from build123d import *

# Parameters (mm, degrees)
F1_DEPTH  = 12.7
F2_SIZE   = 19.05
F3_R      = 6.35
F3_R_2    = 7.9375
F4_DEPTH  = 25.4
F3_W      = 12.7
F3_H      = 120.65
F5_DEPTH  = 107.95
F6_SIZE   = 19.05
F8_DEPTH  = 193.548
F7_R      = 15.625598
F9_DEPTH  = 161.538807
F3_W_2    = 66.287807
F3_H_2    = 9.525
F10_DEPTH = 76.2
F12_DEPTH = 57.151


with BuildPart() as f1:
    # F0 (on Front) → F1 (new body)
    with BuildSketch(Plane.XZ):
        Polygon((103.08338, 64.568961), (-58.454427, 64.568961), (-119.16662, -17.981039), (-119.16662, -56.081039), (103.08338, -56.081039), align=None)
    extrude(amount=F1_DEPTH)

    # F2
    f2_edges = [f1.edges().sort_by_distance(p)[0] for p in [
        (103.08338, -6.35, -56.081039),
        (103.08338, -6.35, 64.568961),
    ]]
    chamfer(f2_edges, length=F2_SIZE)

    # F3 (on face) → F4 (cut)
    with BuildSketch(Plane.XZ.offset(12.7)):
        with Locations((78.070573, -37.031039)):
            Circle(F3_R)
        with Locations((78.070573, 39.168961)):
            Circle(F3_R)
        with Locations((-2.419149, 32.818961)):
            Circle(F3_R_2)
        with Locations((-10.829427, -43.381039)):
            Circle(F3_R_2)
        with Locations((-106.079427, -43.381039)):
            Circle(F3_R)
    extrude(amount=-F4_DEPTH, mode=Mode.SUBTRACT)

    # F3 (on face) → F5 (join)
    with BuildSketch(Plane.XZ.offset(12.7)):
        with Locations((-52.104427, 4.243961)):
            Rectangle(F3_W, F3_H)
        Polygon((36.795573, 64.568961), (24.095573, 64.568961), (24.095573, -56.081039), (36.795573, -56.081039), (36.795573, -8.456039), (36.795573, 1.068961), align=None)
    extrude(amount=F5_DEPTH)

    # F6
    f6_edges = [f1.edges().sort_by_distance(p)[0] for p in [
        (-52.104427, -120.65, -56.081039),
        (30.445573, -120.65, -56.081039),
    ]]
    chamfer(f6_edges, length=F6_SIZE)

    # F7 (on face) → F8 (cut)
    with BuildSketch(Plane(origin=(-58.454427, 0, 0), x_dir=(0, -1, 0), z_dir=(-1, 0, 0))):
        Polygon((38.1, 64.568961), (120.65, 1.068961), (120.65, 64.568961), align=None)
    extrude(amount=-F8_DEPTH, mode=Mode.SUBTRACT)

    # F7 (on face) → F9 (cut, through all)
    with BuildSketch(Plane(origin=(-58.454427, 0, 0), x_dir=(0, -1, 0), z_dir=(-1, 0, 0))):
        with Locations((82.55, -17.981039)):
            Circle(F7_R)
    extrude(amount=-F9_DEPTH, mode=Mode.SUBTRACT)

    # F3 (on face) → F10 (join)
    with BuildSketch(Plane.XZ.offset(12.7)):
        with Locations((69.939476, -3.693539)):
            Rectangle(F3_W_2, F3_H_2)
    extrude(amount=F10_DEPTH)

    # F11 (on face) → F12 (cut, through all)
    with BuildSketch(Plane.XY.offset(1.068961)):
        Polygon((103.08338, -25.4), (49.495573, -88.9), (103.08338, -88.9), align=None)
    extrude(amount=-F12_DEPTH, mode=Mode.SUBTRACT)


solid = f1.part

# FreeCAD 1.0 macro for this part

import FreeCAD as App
import Part
import Sketcher
from FreeCAD import Vector
Q = App.Units.Quantity


def edges_at(feature, points):
    """Names of the edges that pass closest to the given points."""
    edges = feature.Shape.Edges
    near = lambda p: min(range(len(edges)), key=lambda i: edges[i].distToShape(Part.Vertex(*p))[0])
    return sorted({f"Edge{near(p) + 1}" for p in points})

doc = App.newDocument("Part")
body = doc.addObject("PartDesign::Body", "Body")

# Sketch on XZ plane
sketch1 = body.newObject("Sketcher::SketchObject", "Sketch")
sketch1.AttachmentSupport = (doc.getObject("XZ_Plane"), [""])
sketch1.MapMode = "FlatFace"
sketch1.addGeometry([
    Part.LineSegment(Vector(103, 65, 0), Vector(-58, 65, 0)),  # 0
    Part.LineSegment(Vector(-58, 65, 0), Vector(-119, -18, 0)),  # 1
    Part.LineSegment(Vector(-119, -18, 0), Vector(-119, -56, 0)),  # 2
    Part.LineSegment(Vector(-119, -56, 0), Vector(103, -56, 0)),  # 3
    Part.LineSegment(Vector(103, -56, 0), Vector(103, 65, 0)),  # 4
], False)
sketch1.addConstraint([
    Sketcher.Constraint("Coincident", 0, 2, 1, 1),
    Sketcher.Constraint("Coincident", 1, 2, 2, 1),
    Sketcher.Constraint("Coincident", 2, 2, 3, 1),
    Sketcher.Constraint("Coincident", 3, 2, 4, 1),
    Sketcher.Constraint("Coincident", 4, 2, 0, 1),
    Sketcher.Constraint("Horizontal", 0),
    Sketcher.Constraint("Vertical", 2),
    Sketcher.Constraint("Horizontal", 3),
    Sketcher.Constraint("Vertical", 4),
    Sketcher.Constraint("DistanceY", 2, 2, 2, 1, Q("1.5 in")),
    Sketcher.Constraint("DistanceX", 3, 1, 3, 2, Q("8.75 in")),
    Sketcher.Constraint("DistanceY", 4, 1, 4, 2, Q("4.75 in")),
    Sketcher.Constraint("DistanceX", 0, 2, 0, 1, Q("161.537807 mm")),
    Sketcher.Constraint("DistanceY", -1, 1, 0, 2, Q("64.568961 mm")),
    Sketcher.Constraint("DistanceX", 1, 2, -1, 1, Q("119.16662 mm")),
])
pad1 = body.newObject("PartDesign::Pad", "Pad")
pad1.Profile = sketch1
pad1.Length = Q("0.5 in")
doc.recompute()

chamfer = body.newObject("PartDesign::Chamfer", "Chamfer")
chamfer.Base = (pad1, edges_at(pad1, [(103.083, -6.35, -56.081), (103.083, -6.35, 64.569)]))
chamfer.Size = Q("0.75 in")

# Sketch on XZ plane
sketch2 = body.newObject("Sketcher::SketchObject", "Sketch001")
sketch2.AttachmentSupport = (doc.getObject("XZ_Plane"), [""])
sketch2.MapMode = "FlatFace"
sketch2.AttachmentOffset = App.Placement(Vector(0, 0, 0.5 * 25.4), App.Rotation())
sketch2.addGeometry([
    Part.Circle(Vector(78, -37, 0), Vector(0, 0, 1), 6),  # 0
    Part.Circle(Vector(78, 39, 0), Vector(0, 0, 1), 6),  # 1
    Part.Circle(Vector(-2, 33, 0), Vector(0, 0, 1), 8),  # 2
    Part.Circle(Vector(-11, -43, 0), Vector(0, 0, 1), 8),  # 3
    Part.Circle(Vector(-106, -43, 0), Vector(0, 0, 1), 6),  # 4
], False)
sketch2.addConstraint([
    Sketcher.Constraint("Equal", 0, 1),
    Sketcher.Constraint("Equal", 2, 3),
    Sketcher.Constraint("Equal", 1, 4),
    Sketcher.Constraint("Horizontal", 3, 3, 4, 3),
    Sketcher.Constraint("Vertical", 0, 3, 1, 3),
    Sketcher.Constraint("Diameter", 0, Q("0.5 in")),
    Sketcher.Constraint("Diameter", 2, Q("0.625 in")),
    Sketcher.Constraint("DistanceY", 0, 3, 1, 3, Q("3 in")),
    Sketcher.Constraint("DistanceY", 3, 3, 2, 3, Q("3 in")),
    Sketcher.Constraint("DistanceX", 3, 3, 0, 3, Q("3.5 in")),
    Sketcher.Constraint("DistanceY", 2, 3, 1, 3, Q("0.25 in")),
    Sketcher.Constraint("DistanceX", 4, 3, 3, 3, Q("3.75 in")),
    Sketcher.Constraint("DistanceY", 0, 3, -1, 1, Q("37.031039 mm")),
    Sketcher.Constraint("DistanceX", 2, 3, -1, 1, Q("2.419149 mm")),
    Sketcher.Constraint("DistanceX", 2, 3, 1, 3, Q("80.489722 mm")),
])
pocket1 = body.newObject("PartDesign::Pocket", "Pocket")
pocket1.Profile = sketch2
pocket1.Length = Q("1 in")

# Sketch on XZ plane
sketch3 = body.newObject("Sketcher::SketchObject", "Sketch002")
sketch3.AttachmentSupport = (doc.getObject("XZ_Plane"), [""])
sketch3.MapMode = "FlatFace"
sketch3.AttachmentOffset = App.Placement(Vector(0, 0, 0.5 * 25.4), App.Rotation())
sketch3.addGeometry([
    Part.LineSegment(Vector(-58, 65, 0), Vector(-58, -56, 0)),  # 0
    Part.LineSegment(Vector(-58, -56, 0), Vector(-46, -56, 0)),  # 1
    Part.LineSegment(Vector(-46, -56, 0), Vector(-46, 65, 0)),  # 2
    Part.LineSegment(Vector(-46, 65, 0), Vector(-58, 65, 0)),  # 3
    Part.LineSegment(Vector(37, 65, 0), Vector(24, 65, 0)),  # 4
    Part.LineSegment(Vector(24, 65, 0), Vector(24, -56, 0)),  # 5
    Part.LineSegment(Vector(24, -56, 0), Vector(37, -56, 0)),  # 6
    Part.LineSegment(Vector(37, -56, 0), Vector(37, 65, 0)),  # 7
], False)
sketch3.addConstraint([
    Sketcher.Constraint("Coincident", 0, 2, 1, 1),
    Sketcher.Constraint("Coincident", 1, 2, 2, 1),
    Sketcher.Constraint("Coincident", 2, 2, 3, 1),
    Sketcher.Constraint("Coincident", 3, 2, 0, 1),
    Sketcher.Constraint("Coincident", 4, 2, 5, 1),
    Sketcher.Constraint("Coincident", 5, 2, 6, 1),
    Sketcher.Constraint("Coincident", 6, 2, 7, 1),
    Sketcher.Constraint("Coincident", 7, 2, 4, 1),
    Sketcher.Constraint("Vertical", 0),
    Sketcher.Constraint("Horizontal", 1),
    Sketcher.Constraint("Vertical", 2),
    Sketcher.Constraint("Horizontal", 3),
    Sketcher.Constraint("Horizontal", 4),
    Sketcher.Constraint("Vertical", 5),
    Sketcher.Constraint("Horizontal", 6),
    Sketcher.Constraint("Vertical", 7),
    Sketcher.Constraint("Horizontal", 3, 2, 4, 2),
    Sketcher.Constraint("Horizontal", 1, 2, 5, 2),
    Sketcher.Constraint("Equal", 3, 4),
    Sketcher.Constraint("DistanceX", 1, 1, 1, 2, Q("0.5 in")),
    Sketcher.Constraint("DistanceY", 0, 2, 0, 1, Q("4.75 in")),
    Sketcher.Constraint("DistanceX", 2, 2, 4, 2, Q("2.75 in")),
    Sketcher.Constraint("DistanceY", 0, 2, -1, 1, Q("56.081039 mm")),
    Sketcher.Constraint("DistanceX", 0, 2, -1, 1, Q("58.454427 mm")),
])
pad2 = body.newObject("PartDesign::Pad", "Pad001")
pad2.Profile = sketch3
pad2.Length = Q("4.25 in")
doc.recompute()

chamfer2 = body.newObject("PartDesign::Chamfer", "Chamfer001")
chamfer2.Base = (pad2, edges_at(pad2, [(-52.104, -120.65, -56.081), (30.446, -120.65, -56.081)]))
chamfer2.Size = Q("0.75 in")

# Sketch on YZ plane
sketch4 = body.newObject("Sketcher::SketchObject", "Sketch003")
sketch4.AttachmentSupport = (doc.getObject("YZ_Plane"), [""])
sketch4.MapMode = "FlatFace"
sketch4.AttachmentOffset = App.Placement(Vector(0, 0, -58.454427), App.Rotation())
sketch4.addGeometry([
    Part.LineSegment(Vector(-38, 65, 0), Vector(-121, 1, 0)),
    Part.LineSegment(Vector(-121, 1, 0), Vector(-121, 65, 0)),
    Part.LineSegment(Vector(-121, 65, 0), Vector(-38, 65, 0)),
], False)
sketch4.addConstraint([
    Sketcher.Constraint("Coincident", 0, 2, 1, 1),
    Sketcher.Constraint("Coincident", 1, 2, 2, 1),
    Sketcher.Constraint("Coincident", 2, 2, 0, 1),
    Sketcher.Constraint("Vertical", 1),
    Sketcher.Constraint("Horizontal", 2),
    Sketcher.Constraint("DistanceY", 1, 1, 1, 2, Q("2.5 in")),
    Sketcher.Constraint("DistanceX", 2, 1, 2, 2, Q("3.25 in")),
    Sketcher.Constraint("DistanceX", 2, 2, -1, 1, Q("1.5 in")),
    Sketcher.Constraint("DistanceY", -1, 1, 0, 2, Q("1.068961 mm")),
])
pocket2 = body.newObject("PartDesign::Pocket", "Pocket001")
pocket2.Profile = sketch4
pocket2.Length = Q("7.62 in")
pocket2.Reversed = True

# Sketch on YZ plane
sketch5 = body.newObject("Sketcher::SketchObject", "Sketch004")
sketch5.AttachmentSupport = (doc.getObject("YZ_Plane"), [""])
sketch5.MapMode = "FlatFace"
sketch5.AttachmentOffset = App.Placement(Vector(0, 0, -58.454427), App.Rotation())
sketch5.addGeometry(Part.Circle(Vector(-83, -18, 0), Vector(0, 0, 1), 16), False)
sketch5.addConstraint([
    Sketcher.Constraint("DistanceX", 0, 3, -1, 1, Q("3.25 in")),
    Sketcher.Constraint("Diameter", 0, Q("31.251196 mm")),
    Sketcher.Constraint("DistanceY", 0, 3, -1, 1, Q("17.981039 mm")),
])
pocket3 = body.newObject("PartDesign::Pocket", "Pocket002")
pocket3.Profile = sketch5
pocket3.Type = "ThroughAll"
pocket3.Reversed = True

# Sketch on XZ plane
sketch6 = body.newObject("Sketcher::SketchObject", "Sketch005")
sketch6.AttachmentSupport = (doc.getObject("XZ_Plane"), [""])
sketch6.MapMode = "FlatFace"
sketch6.AttachmentOffset = App.Placement(Vector(0, 0, 0.5 * 25.4), App.Rotation())
sketch6.addGeometry([
    Part.LineSegment(Vector(37, 1, 0), Vector(37, -8, 0)),
    Part.LineSegment(Vector(37, -8, 0), Vector(103, -8, 0)),
    Part.LineSegment(Vector(103, -8, 0), Vector(103, 1, 0)),
    Part.LineSegment(Vector(103, 1, 0), Vector(37, 1, 0)),
], False)
sketch6.addConstraint([
    Sketcher.Constraint("Coincident", 0, 2, 1, 1),
    Sketcher.Constraint("Coincident", 1, 2, 2, 1),
    Sketcher.Constraint("Coincident", 2, 2, 3, 1),
    Sketcher.Constraint("Coincident", 3, 2, 0, 1),
    Sketcher.Constraint("Vertical", 0),
    Sketcher.Constraint("Horizontal", 1),
    Sketcher.Constraint("Vertical", 2),
    Sketcher.Constraint("Horizontal", 3),
    Sketcher.Constraint("DistanceY", 0, 2, 0, 1, Q("0.375 in")),
    Sketcher.Constraint("DistanceX", 1, 1, 1, 2, Q("66.287807 mm")),
    Sketcher.Constraint("DistanceY", 0, 2, -1, 1, Q("8.456039 mm")),
    Sketcher.Constraint("DistanceX", -1, 1, 1, 2, Q("103.08338 mm")),
])
pad3 = body.newObject("PartDesign::Pad", "Pad002")
pad3.Profile = sketch6
pad3.Length = Q("3 in")

# Sketch on XY plane
sketch7 = body.newObject("Sketcher::SketchObject", "Sketch006")
sketch7.AttachmentSupport = (doc.getObject("XY_Plane"), [""])
sketch7.MapMode = "FlatFace"
sketch7.AttachmentOffset = App.Placement(Vector(0, 0, 1.068961), App.Rotation())
sketch7.addGeometry([
    Part.LineSegment(Vector(103, -25, 0), Vector(49, -89, 0)),
    Part.LineSegment(Vector(49, -89, 0), Vector(103, -89, 0)),
    Part.LineSegment(Vector(103, -89, 0), Vector(103, -25, 0)),
], False)
sketch7.addConstraint([
    Sketcher.Constraint("Coincident", 0, 2, 1, 1),
    Sketcher.Constraint("Coincident", 1, 2, 2, 1),
    Sketcher.Constraint("Coincident", 2, 2, 0, 1),
    Sketcher.Constraint("Horizontal", 1),
    Sketcher.Constraint("Vertical", 2),
    Sketcher.Constraint("DistanceY", 2, 1, 2, 2, Q("2.5 in")),
    Sketcher.Constraint("DistanceY", 2, 2, -1, 1, Q("1 in")),
    Sketcher.Constraint("Distance", 0, Q("83.089729 mm")),
    Sketcher.Constraint("DistanceX", -1, 1, 1, 2, Q("103.08338 mm")),
])
pocket4 = body.newObject("PartDesign::Pocket", "Pocket003")
pocket4.Profile = sketch7
pocket4.Type = "ThroughAll"

doc.recompute()
